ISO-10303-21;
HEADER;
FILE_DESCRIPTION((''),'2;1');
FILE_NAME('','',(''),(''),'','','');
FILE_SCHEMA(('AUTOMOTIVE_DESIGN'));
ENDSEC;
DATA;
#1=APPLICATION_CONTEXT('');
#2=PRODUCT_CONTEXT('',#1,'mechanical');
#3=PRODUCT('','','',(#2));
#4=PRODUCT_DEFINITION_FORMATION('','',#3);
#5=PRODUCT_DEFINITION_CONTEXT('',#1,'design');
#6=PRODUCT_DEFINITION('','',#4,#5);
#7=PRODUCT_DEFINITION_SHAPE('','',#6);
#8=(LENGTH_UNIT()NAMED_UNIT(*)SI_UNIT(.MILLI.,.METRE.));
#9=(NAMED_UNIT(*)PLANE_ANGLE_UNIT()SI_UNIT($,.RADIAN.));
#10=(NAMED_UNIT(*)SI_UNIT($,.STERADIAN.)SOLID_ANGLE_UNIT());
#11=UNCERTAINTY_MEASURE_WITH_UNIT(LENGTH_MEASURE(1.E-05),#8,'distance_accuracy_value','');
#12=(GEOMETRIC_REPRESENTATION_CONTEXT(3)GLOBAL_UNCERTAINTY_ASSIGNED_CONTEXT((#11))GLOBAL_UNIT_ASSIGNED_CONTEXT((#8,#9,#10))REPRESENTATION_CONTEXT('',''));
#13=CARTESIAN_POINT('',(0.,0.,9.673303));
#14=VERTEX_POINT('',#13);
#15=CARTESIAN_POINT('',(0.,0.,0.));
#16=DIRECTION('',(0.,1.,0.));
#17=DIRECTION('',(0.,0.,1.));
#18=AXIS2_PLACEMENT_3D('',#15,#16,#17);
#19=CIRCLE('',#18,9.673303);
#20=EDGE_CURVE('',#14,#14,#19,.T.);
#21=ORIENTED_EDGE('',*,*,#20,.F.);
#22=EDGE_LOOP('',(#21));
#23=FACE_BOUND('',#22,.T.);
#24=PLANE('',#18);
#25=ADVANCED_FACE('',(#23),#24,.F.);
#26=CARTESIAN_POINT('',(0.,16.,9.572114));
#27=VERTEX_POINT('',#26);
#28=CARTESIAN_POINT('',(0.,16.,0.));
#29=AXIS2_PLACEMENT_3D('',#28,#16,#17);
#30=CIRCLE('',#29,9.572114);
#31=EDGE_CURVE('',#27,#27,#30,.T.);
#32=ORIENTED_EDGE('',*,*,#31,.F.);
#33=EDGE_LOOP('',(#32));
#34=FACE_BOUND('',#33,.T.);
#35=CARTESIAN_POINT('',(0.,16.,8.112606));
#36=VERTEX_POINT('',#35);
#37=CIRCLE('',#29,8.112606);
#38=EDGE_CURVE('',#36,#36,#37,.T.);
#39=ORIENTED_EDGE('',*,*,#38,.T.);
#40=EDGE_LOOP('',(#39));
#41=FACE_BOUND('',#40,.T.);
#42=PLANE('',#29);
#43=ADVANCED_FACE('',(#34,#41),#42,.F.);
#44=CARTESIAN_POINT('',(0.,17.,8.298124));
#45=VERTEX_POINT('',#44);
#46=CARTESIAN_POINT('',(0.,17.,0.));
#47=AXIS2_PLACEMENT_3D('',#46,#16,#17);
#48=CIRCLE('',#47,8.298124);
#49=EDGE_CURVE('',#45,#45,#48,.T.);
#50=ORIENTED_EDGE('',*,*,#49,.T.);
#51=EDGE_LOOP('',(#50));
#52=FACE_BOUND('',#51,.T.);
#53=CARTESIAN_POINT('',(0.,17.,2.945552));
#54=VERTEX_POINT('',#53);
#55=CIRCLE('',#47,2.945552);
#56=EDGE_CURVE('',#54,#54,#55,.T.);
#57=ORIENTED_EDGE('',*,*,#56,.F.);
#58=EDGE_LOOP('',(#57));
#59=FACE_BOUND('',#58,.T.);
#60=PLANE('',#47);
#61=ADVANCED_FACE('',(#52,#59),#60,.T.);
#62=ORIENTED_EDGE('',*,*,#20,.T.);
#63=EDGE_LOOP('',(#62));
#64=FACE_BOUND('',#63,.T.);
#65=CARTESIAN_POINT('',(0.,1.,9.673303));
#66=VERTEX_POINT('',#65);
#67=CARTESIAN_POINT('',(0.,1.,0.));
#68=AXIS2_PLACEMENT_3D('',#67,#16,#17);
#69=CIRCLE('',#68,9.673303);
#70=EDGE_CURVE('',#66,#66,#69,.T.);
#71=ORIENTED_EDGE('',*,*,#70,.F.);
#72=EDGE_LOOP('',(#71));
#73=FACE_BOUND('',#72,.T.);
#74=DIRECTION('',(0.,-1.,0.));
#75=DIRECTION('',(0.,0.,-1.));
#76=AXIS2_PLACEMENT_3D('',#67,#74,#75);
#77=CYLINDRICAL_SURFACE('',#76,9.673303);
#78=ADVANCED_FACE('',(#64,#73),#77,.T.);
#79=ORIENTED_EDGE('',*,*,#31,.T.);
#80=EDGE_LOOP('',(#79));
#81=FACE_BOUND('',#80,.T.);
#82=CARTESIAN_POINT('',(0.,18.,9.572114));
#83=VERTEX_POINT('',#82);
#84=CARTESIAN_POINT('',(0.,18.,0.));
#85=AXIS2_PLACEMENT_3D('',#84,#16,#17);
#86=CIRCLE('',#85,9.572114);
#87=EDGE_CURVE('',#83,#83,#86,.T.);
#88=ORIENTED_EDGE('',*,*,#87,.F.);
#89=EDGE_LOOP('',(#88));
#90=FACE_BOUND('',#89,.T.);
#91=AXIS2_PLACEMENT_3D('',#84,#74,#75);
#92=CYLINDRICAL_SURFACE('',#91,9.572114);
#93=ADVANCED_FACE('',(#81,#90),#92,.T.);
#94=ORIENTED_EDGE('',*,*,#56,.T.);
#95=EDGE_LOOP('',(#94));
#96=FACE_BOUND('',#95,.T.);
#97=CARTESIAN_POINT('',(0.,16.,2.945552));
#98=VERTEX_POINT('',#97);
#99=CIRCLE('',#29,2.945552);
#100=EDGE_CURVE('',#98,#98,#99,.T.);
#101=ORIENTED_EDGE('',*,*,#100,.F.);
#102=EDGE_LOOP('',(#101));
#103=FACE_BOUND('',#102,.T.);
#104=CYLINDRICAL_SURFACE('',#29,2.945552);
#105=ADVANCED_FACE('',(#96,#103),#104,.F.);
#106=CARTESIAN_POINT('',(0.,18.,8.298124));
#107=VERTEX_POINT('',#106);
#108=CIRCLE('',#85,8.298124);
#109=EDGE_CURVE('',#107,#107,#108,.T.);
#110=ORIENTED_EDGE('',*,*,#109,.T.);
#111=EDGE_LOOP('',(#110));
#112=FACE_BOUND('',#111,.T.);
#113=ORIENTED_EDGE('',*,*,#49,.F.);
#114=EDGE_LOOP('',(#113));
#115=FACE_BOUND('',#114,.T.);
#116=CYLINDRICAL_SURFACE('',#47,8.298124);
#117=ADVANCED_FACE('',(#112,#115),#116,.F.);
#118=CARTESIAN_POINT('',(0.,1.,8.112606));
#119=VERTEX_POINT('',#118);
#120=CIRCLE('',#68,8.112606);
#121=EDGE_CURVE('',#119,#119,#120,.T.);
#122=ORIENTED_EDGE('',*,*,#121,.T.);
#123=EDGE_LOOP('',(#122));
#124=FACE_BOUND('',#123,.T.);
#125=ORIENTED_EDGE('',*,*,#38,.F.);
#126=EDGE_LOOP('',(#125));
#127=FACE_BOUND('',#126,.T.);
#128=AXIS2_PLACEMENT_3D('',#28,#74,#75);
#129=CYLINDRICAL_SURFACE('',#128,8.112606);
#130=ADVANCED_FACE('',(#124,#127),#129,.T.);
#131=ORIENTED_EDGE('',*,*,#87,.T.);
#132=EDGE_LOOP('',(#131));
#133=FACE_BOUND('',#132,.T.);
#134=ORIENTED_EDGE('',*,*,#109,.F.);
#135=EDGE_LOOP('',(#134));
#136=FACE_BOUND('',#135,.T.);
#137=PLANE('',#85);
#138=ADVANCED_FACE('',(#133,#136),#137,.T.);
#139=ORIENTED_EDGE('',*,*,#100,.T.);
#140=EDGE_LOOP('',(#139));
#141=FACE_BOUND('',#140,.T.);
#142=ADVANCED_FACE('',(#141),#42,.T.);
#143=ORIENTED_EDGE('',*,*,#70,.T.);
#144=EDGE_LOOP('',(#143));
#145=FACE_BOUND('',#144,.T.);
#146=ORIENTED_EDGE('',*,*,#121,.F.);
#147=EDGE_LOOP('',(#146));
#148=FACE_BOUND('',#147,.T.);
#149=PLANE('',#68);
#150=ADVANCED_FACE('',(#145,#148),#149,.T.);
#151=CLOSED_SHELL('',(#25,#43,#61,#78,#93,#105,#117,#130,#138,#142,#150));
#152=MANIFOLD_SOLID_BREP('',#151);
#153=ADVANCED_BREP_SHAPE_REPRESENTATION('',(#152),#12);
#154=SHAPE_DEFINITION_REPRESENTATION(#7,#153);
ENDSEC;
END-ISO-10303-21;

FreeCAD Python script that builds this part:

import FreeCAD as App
import Part
import Sketcher
from FreeCAD import Vector
Q = App.Units.Quantity

doc = App.newDocument("Part")
body = doc.addObject("PartDesign::Body", "Body")

sketch1 = doc.addObject("Sketcher::SketchObject", "Sketch")
body.addObject(sketch1)
sketch1.AttachmentSupport = (doc.XZ_Plane, [""])
sketch1.MapMode = "FlatFace"
sketch1.addGeometry(Part.Circle(Vector(0, 0, 0), Vector(0, 0, 1), 10), False)
sketch1.addConstraint(Sketcher.Constraint("Coincident", 0, 3, -1, 1))
sketch1.addConstraint(Sketcher.Constraint("Diameter", 0, Q("19.346605 mm")))
pad1 = doc.addObject("PartDesign::Pad", "Pad")
body.addObject(pad1)
pad1.Profile = sketch1
pad1.Length = 1
pad1.Reversed = True

sketch2 = doc.addObject("Sketcher::SketchObject", "Sketch001")
body.addObject(sketch2)
sketch2.AttachmentSupport = (doc.XZ_Plane, [""])
sketch2.MapMode = "FlatFace"
sketch2.AttachmentOffset = App.Placement(Vector(0, 0, -1), App.Rotation())
sketch2.addGeometry(Part.Circle(Vector(0, 0, 0), Vector(0, 0, 1), 8), False)
sketch2.addConstraint(Sketcher.Constraint("Coincident", 0, 3, -1, 1))
sketch2.addConstraint(Sketcher.Constraint("Diameter", 0, Q("16.225213 mm")))
pad2 = doc.addObject("PartDesign::Pad", "Pad001")
body.addObject(pad2)
pad2.Profile = sketch2
pad2.Length = 15
pad2.Reversed = True

sketch3 = doc.addObject("Sketcher::SketchObject", "Sketch002")
body.addObject(sketch3)
sketch3.AttachmentSupport = (doc.XZ_Plane, [""])
sketch3.MapMode = "FlatFace"
sketch3.AttachmentOffset = App.Placement(Vector(0, 0, -16), App.Rotation())
sketch3.addGeometry(Part.Circle(Vector(0, 0, 0), Vector(0, 0, 1), 10), False)
sketch3.addConstraint(Sketcher.Constraint("Coincident", 0, 3, -1, 1))
sketch3.addConstraint(Sketcher.Constraint("Diameter", 0, Q("19.144228 mm")))
pad3 = doc.addObject("PartDesign::Pad", "Pad002")
body.addObject(pad3)
pad3.Profile = sketch3
pad3.Length = 2
pad3.Reversed = True

sketch4 = doc.addObject("Sketcher::SketchObject", "Sketch003")
body.addObject(sketch4)
sketch4.AttachmentSupport = (doc.XZ_Plane, [""])
sketch4.MapMode = "FlatFace"
sketch4.AttachmentOffset = App.Placement(Vector(0, 0, -18), App.Rotation())
sketch4.addGeometry(Part.Circle(Vector(0, 0, 0), Vector(0, 0, 1), 8), False)
sketch4.addConstraint(Sketcher.Constraint("Coincident", 0, 3, -1, 1))
sketch4.addConstraint(Sketcher.Constraint("Diameter", 0, Q("16.596248 mm")))
pocket1 = doc.addObject("PartDesign::Pocket", "Pocket")
body.addObject(pocket1)
pocket1.Profile = sketch4
pocket1.Length = 1
pocket1.Reversed = True

sketch5 = doc.addObject("Sketcher::SketchObject", "Sketch004")
body.addObject(sketch5)
sketch5.AttachmentSupport = (doc.XZ_Plane, [""])
sketch5.MapMode = "FlatFace"
sketch5.AttachmentOffset = App.Placement(Vector(0, 0, -17), App.Rotation())
sketch5.addGeometry(Part.Circle(Vector(0, 0, 0), Vector(0, 0, 1), 2.9), False)
sketch5.addConstraint(Sketcher.Constraint("Coincident", 0, 3, -1, 1))
sketch5.addConstraint(Sketcher.Constraint("Diameter", 0, Q("5.891105 mm")))
pocket2 = doc.addObject("PartDesign::Pocket", "Pocket001")
body.addObject(pocket2)
pocket2.Profile = sketch5
pocket2.Length = 1
pocket2.Reversed = True

doc.recompute()
